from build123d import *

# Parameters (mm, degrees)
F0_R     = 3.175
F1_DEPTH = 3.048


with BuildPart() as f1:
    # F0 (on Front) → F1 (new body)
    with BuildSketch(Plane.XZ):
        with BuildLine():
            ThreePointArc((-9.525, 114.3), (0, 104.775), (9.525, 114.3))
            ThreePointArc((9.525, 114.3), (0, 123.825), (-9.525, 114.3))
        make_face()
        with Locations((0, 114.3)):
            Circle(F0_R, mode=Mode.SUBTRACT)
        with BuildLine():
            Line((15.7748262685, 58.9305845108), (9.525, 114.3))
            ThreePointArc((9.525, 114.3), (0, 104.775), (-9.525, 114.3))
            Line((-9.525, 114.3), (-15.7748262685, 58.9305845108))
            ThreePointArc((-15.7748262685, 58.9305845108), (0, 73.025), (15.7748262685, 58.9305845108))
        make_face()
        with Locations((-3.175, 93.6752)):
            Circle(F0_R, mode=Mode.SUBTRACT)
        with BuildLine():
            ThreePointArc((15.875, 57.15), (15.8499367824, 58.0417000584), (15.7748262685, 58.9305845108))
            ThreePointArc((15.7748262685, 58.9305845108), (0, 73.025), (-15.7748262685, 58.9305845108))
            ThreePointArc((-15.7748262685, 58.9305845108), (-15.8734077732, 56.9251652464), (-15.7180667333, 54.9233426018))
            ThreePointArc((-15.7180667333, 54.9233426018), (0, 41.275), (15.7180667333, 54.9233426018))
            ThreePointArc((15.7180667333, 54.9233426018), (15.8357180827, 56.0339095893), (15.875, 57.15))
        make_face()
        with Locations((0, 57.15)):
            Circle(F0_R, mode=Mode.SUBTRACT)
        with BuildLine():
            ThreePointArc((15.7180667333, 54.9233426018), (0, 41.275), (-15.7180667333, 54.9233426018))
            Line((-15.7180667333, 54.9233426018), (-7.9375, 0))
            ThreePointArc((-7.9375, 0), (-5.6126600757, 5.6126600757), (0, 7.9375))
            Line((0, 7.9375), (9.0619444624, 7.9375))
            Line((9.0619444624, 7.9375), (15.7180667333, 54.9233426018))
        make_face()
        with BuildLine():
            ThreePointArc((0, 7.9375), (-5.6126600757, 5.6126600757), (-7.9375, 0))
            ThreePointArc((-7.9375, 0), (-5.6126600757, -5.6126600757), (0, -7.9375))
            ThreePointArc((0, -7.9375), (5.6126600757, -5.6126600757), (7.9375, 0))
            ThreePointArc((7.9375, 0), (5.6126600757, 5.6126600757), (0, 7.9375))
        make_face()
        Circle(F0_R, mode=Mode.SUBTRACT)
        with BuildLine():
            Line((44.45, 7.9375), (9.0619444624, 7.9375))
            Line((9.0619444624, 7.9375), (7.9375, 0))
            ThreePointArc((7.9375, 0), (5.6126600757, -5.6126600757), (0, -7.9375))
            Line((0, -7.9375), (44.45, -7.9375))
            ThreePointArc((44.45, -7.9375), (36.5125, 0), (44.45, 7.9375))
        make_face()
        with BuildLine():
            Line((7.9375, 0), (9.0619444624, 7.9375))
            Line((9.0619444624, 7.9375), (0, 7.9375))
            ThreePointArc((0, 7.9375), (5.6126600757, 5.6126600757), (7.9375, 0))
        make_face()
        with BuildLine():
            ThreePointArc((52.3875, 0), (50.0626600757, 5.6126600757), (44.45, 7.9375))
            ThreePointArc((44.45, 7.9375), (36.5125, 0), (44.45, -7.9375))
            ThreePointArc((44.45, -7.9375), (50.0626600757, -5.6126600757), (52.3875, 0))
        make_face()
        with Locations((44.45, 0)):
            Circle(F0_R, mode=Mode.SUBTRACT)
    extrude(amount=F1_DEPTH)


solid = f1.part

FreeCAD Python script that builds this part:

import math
import FreeCAD as App
import Part
import Sketcher
Q = App.Units.Quantity

doc = App.newDocument("Part")
body = doc.addObject("PartDesign::Body", "Body")

sketch1 = body.newObject("Sketcher::SketchObject", "Sketch")
sketch1.AttachmentSupport = (doc.getObject("XZ_Plane"), [""])
sketch1.MapMode = "FlatFace"
sketch1.addGeometry([
    Part.LineSegment(App.Vector(44.5, 7.9, 0), App.Vector(9.1, 7.9, 0)),
    Part.LineSegment(App.Vector(9.1, 7.9, 0), App.Vector(15.7, 54.9, 0)),
    Part.ArcOfCircle(Part.Circle(App.Vector(0, 57.2, 0), App.Vector(0, 0, 1), 15.9), math.radians(-8.06), math.radians(0)),
    Part.ArcOfCircle(Part.Circle(App.Vector(0, 57.1, 0), App.Vector(0, 0, 1), 15.9), math.radians(0), math.radians(6.44)),
    Part.LineSegment(App.Vector(15.8, 58.9, 0), App.Vector(9.5, 114.3, 0)),
    Part.ArcOfCircle(Part.Circle(App.Vector(0, 114.3, 0), App.Vector(0, 0, 1), 9.5), math.radians(0), math.radians(180)),
    Part.LineSegment(App.Vector(-9.5, 114.3, 0), App.Vector(-15.8, 58.9, 0)),
    Part.ArcOfCircle(Part.Circle(App.Vector(0, 57.1, 0), App.Vector(0, 0, 1), 15.9), math.radians(173.56), math.radians(188.06)),
    Part.LineSegment(App.Vector(-15.7, 54.9, 0), App.Vector(-7.9, 0, 0)),
    Part.ArcOfCircle(Part.Circle(App.Vector(0, 0, 0), App.Vector(0, 0, 1), 7.9), math.radians(180), math.radians(270)),
    Part.LineSegment(App.Vector(0, -7.9, 0), App.Vector(44.5, -7.9, 0)),
    Part.ArcOfCircle(Part.Circle(App.Vector(44.5, 0, 0), App.Vector(0, 0, 1), 7.9), math.radians(-90), math.radians(0)),
    Part.ArcOfCircle(Part.Circle(App.Vector(44.5, 0, 0), App.Vector(0, 0, 1), 7.9), math.radians(0), math.radians(90)),
    Part.Circle(App.Vector(0, 0, 0), App.Vector(0, 0, 1), 3.2),
    Part.Circle(App.Vector(44.5, 0, 0), App.Vector(0, 0, 1), 3.2),
    Part.Circle(App.Vector(0, 57.1, 0), App.Vector(0, 0, 1), 3.2),
    Part.Circle(App.Vector(-3.2, 93.7, 0), App.Vector(0, 0, 1), 3.2),
    Part.Circle(App.Vector(0, 114.3, 0), App.Vector(0, 0, 1), 3.2),
], False)
sketch1.addConstraint([
    Sketcher.Constraint("Coincident", 0, 2, 1, 1),
    Sketcher.Constraint("Tangent", 1, 2, 2, 1),
    Sketcher.Constraint("Tangent", 2, 2, 3, 1),
    Sketcher.Constraint("Tangent", 3, 2, 4, 1),
    Sketcher.Constraint("Coincident", 4, 2, 5, 1),
    Sketcher.Constraint("Coincident", 5, 2, 6, 1),
    Sketcher.Constraint("Tangent", 6, 2, 7, 1),
    Sketcher.Constraint("Tangent", 7, 2, 8, 1),
    Sketcher.Constraint("Coincident", 8, 2, 9, 1),
    Sketcher.Constraint("Tangent", 9, 2, 10, 1),
    Sketcher.Constraint("Tangent", 10, 2, 11, 1),
    Sketcher.Constraint("Tangent", 11, 2, 12, 1),
    Sketcher.Constraint("Tangent", 12, 2, 0, 1),
    Sketcher.Constraint("Horizontal", 0),
    Sketcher.Constraint("Horizontal", 10),
    Sketcher.Constraint("Coincident", 9, 3, -1, 1),
    Sketcher.Constraint("Coincident", 13, 3, -1, 1),
    Sketcher.Constraint("Coincident", 7, 3, 2, 3),
    Sketcher.Constraint("Coincident", 14, 3, 11, 3),
    Sketcher.Constraint("Coincident", 15, 3, 2, 3),
    Sketcher.Constraint("Coincident", 17, 3, 5, 3),
    Sketcher.Constraint("Equal", 2, 3),
    Sketcher.Constraint("Equal", 3, 7),
    Sketcher.Constraint("Equal", 9, 11),
    Sketcher.Constraint("Equal", 11, 12),
    Sketcher.Constraint("Equal", 13, 14),
    Sketcher.Constraint("Equal", 14, 15),
    Sketcher.Constraint("Equal", 15, 16),
    Sketcher.Constraint("Equal", 16, 17),
    Sketcher.Constraint("Symmetric", 4, 2, 5, 2, -2),
    Sketcher.Constraint("Symmetric", 1, 2, 7, 2, -2),
    Sketcher.Constraint("PointOnObject", 8, 2, -1),
    Sketcher.Constraint("PointOnObject", 11, 2, -1),
    Sketcher.Constraint("Horizontal", 15, 3, 2, 2),
    Sketcher.Constraint("Horizontal", 17, 3, 4, 2),
    Sketcher.Constraint("Diameter", 13, Q("0.25 in")),
    Sketcher.Constraint("Radius", 2, Q("0.625 in")),
    Sketcher.Constraint("Radius", 5, Q("0.375 in")),
    Sketcher.Constraint("Radius", 9, Q("0.3125 in")),
    Sketcher.Constraint("DistanceX", 10, 1, 10, 2, Q("1.75 in")),
    Sketcher.Constraint("DistanceY", -1, 1, 5, 3, Q("4.5 in")),
    Sketcher.Constraint("DistanceX", 16, 3, 4, 2, Q("0.5 in")),
    Sketcher.Constraint("DistanceY", -1, 1, 2, 3, Q("2.25 in")),
    Sketcher.Constraint("DistanceY", -1, 1, 16, 3, Q("3.688 in")),
])
pad1 = body.newObject("PartDesign::Pad", "Pad")
pad1.Profile = sketch1
pad1.Length = Q("0.12 in")

doc.recompute()
